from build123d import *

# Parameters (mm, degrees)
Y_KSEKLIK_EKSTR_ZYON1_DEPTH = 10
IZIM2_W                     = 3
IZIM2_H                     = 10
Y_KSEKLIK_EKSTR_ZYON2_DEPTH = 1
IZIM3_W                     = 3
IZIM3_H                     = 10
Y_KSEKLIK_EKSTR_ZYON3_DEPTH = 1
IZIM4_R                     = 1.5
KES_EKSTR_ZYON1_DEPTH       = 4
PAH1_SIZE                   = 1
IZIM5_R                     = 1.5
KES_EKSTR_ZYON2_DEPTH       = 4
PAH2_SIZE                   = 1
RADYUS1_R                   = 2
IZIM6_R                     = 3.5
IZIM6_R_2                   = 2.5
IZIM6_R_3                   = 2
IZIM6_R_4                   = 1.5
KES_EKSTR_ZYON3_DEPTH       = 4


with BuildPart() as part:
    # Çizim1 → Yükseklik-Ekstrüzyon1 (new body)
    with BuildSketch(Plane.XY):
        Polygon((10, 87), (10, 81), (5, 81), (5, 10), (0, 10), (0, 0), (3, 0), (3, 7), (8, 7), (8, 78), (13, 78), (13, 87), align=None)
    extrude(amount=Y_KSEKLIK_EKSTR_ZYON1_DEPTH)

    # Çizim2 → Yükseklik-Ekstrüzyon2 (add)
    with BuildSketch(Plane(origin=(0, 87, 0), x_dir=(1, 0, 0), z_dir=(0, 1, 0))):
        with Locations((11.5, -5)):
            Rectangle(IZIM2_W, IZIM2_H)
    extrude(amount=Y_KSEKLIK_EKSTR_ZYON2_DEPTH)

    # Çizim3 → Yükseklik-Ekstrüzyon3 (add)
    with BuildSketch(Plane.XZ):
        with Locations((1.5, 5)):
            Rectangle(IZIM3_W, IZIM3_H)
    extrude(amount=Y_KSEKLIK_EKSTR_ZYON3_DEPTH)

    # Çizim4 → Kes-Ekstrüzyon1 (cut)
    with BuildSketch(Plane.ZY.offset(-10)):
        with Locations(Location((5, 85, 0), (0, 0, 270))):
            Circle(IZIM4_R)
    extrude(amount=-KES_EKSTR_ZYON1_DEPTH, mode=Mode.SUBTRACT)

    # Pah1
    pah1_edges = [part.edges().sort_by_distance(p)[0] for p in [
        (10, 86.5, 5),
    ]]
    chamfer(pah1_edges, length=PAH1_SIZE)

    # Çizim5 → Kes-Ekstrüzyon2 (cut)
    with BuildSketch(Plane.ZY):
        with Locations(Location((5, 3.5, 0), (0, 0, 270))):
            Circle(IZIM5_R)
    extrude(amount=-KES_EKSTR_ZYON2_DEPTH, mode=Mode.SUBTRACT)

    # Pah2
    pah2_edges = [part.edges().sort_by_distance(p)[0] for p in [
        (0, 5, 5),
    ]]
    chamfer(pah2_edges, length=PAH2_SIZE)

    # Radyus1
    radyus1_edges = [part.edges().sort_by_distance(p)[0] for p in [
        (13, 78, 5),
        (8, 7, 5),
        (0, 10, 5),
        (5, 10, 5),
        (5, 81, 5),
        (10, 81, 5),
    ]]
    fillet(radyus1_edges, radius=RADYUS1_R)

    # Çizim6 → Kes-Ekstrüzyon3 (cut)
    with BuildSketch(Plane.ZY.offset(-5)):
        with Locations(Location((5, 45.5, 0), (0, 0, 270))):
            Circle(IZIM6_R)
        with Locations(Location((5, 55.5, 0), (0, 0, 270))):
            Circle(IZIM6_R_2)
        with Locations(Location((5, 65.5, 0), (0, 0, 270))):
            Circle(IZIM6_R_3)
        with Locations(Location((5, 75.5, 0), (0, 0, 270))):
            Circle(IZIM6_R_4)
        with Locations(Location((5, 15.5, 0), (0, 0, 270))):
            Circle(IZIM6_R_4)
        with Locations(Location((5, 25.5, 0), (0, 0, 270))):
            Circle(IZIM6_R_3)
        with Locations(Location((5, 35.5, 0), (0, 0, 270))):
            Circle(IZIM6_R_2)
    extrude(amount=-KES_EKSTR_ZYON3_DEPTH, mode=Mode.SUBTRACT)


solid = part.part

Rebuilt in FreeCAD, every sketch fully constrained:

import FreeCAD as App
import Part
import Sketcher
from FreeCAD import Vector


def edges_at(feature, points):
    """Names of the edges that pass closest to the given points."""
    edges = feature.Shape.Edges
    near = lambda p: min(range(len(edges)), key=lambda i: edges[i].distToShape(Part.Vertex(*p))[0])
    return sorted({f"Edge{near(p) + 1}" for p in points})

doc = App.newDocument("Part")
body = doc.addObject("PartDesign::Body", "Body")

sketch1 = body.newObject("Sketcher::SketchObject", "Sketch")
sketch1.AttachmentSupport = (doc.getObject("XY_Plane"), [""])
sketch1.MapMode = "FlatFace"
sketch1.addGeometry([
    Part.LineSegment(Vector(10, 87, 0), Vector(10, 81, 0)),
    Part.LineSegment(Vector(10, 81, 0), Vector(5, 81, 0)),
    Part.LineSegment(Vector(5, 81, 0), Vector(5, 10, 0)),
    Part.LineSegment(Vector(5, 10, 0), Vector(0, 10, 0)),
    Part.LineSegment(Vector(0, 10, 0), Vector(0, 0, 0)),
    Part.LineSegment(Vector(0, 0, 0), Vector(3, 0, 0)),
    Part.LineSegment(Vector(3, 0, 0), Vector(3, 7, 0)),
    Part.LineSegment(Vector(3, 7, 0), Vector(8, 7, 0)),
    Part.LineSegment(Vector(8, 7, 0), Vector(8, 78, 0)),
    Part.LineSegment(Vector(8, 78, 0), Vector(13, 78, 0)),
    Part.LineSegment(Vector(13, 78, 0), Vector(13, 87, 0)),
    Part.LineSegment(Vector(13, 87, 0), Vector(10, 87, 0)),
], False)
sketch1.addConstraint([
    Sketcher.Constraint("Coincident", 0, 2, 1, 1),
    Sketcher.Constraint("Coincident", 1, 2, 2, 1),
    Sketcher.Constraint("Coincident", 2, 2, 3, 1),
    Sketcher.Constraint("Coincident", 3, 2, 4, 1),
    Sketcher.Constraint("Coincident", 4, 2, 5, 1),
    Sketcher.Constraint("Coincident", 5, 2, 6, 1),
    Sketcher.Constraint("Coincident", 6, 2, 7, 1),
    Sketcher.Constraint("Coincident", 7, 2, 8, 1),
    Sketcher.Constraint("Coincident", 8, 2, 9, 1),
    Sketcher.Constraint("Coincident", 9, 2, 10, 1),
    Sketcher.Constraint("Coincident", 10, 2, 11, 1),
    Sketcher.Constraint("Coincident", 11, 2, 0, 1),
    Sketcher.Constraint("Vertical", 0),
    Sketcher.Constraint("Horizontal", 1),
    Sketcher.Constraint("Vertical", 2),
    Sketcher.Constraint("Horizontal", 3),
    Sketcher.Constraint("Vertical", 4),
    Sketcher.Constraint("Horizontal", 5),
    Sketcher.Constraint("Vertical", 6),
    Sketcher.Constraint("Horizontal", 7),
    Sketcher.Constraint("Vertical", 8),
    Sketcher.Constraint("Horizontal", 9),
    Sketcher.Constraint("Vertical", 10),
    Sketcher.Constraint("Horizontal", 11),
    Sketcher.Constraint("Coincident", 4, 2, -1, 1),
    Sketcher.Constraint("Equal", 1, 3),
    Sketcher.Constraint("Equal", 3, 7),
    Sketcher.Constraint("Equal", 7, 9),
    Sketcher.Constraint("Equal", 2, 8),
    Sketcher.Constraint("DistanceX", 1, 2, 1, 1, 5.0),
    Sketcher.Constraint("DistanceX", 5, 1, 5, 2, 3.0),
    Sketcher.Constraint("DistanceY", 0, 2, 0, 1, 6.0),
    Sketcher.Constraint("DistanceY", 2, 2, 2, 1, 71.0),
    Sketcher.Constraint("DistanceY", 4, 2, 4, 1, 10.0),
    Sketcher.Constraint("DistanceY", 6, 1, 6, 2, 7.0),
])
pad1 = body.newObject("PartDesign::Pad", "Pad")
pad1.Profile = sketch1
pad1.Length = 10

sketch2 = body.newObject("Sketcher::SketchObject", "Sketch001")
sketch2.AttachmentSupport = (doc.getObject("XZ_Plane"), [""])
sketch2.MapMode = "FlatFace"
sketch2.AttachmentOffset = App.Placement(Vector(0, 0, -87), App.Rotation())
sketch2.addGeometry([
    Part.LineSegment(Vector(10, 0, 0), Vector(10, 10, 0)),
    Part.LineSegment(Vector(10, 10, 0), Vector(13, 10, 0)),
    Part.LineSegment(Vector(13, 10, 0), Vector(13, 0, 0)),
    Part.LineSegment(Vector(13, 0, 0), Vector(10, 0, 0)),
], False)
sketch2.addConstraint([
    Sketcher.Constraint("Coincident", 0, 2, 1, 1),
    Sketcher.Constraint("Coincident", 1, 2, 2, 1),
    Sketcher.Constraint("Coincident", 2, 2, 3, 1),
    Sketcher.Constraint("Coincident", 3, 2, 0, 1),
    Sketcher.Constraint("Vertical", 0),
    Sketcher.Constraint("Horizontal", 1),
    Sketcher.Constraint("Vertical", 2),
    Sketcher.Constraint("Horizontal", 3),
    Sketcher.Constraint("PointOnObject", 2, 2, -1),
    Sketcher.Constraint("DistanceX", 1, 1, 1, 2, 3.0),
    Sketcher.Constraint("DistanceY", 0, 1, 0, 2, 10.0),
    Sketcher.Constraint("DistanceX", -1, 1, 0, 2, 10.0),
])
pad2 = body.newObject("PartDesign::Pad", "Pad001")
pad2.Profile = sketch2
pad2.Length = 1
pad2.Reversed = True

sketch3 = body.newObject("Sketcher::SketchObject", "Sketch002")
sketch3.AttachmentSupport = (doc.getObject("XZ_Plane"), [""])
sketch3.MapMode = "FlatFace"
sketch3.addGeometry([
    Part.LineSegment(Vector(0, 10, 0), Vector(0, 0, 0)),
    Part.LineSegment(Vector(0, 0, 0), Vector(3, 0, 0)),
    Part.LineSegment(Vector(3, 0, 0), Vector(3, 10, 0)),
    Part.LineSegment(Vector(3, 10, 0), Vector(0, 10, 0)),
], False)
sketch3.addConstraint([
    Sketcher.Constraint("Coincident", 0, 2, 1, 1),
    Sketcher.Constraint("Coincident", 1, 2, 2, 1),
    Sketcher.Constraint("Coincident", 2, 2, 3, 1),
    Sketcher.Constraint("Coincident", 3, 2, 0, 1),
    Sketcher.Constraint("Vertical", 0),
    Sketcher.Constraint("Horizontal", 1),
    Sketcher.Constraint("Vertical", 2),
    Sketcher.Constraint("Horizontal", 3),
    Sketcher.Constraint("Coincident", 0, 2, -1, 1),
    Sketcher.Constraint("DistanceX", 1, 1, 1, 2, 3.0),
    Sketcher.Constraint("DistanceY", 0, 2, 0, 1, 10.0),
])
pad3 = body.newObject("PartDesign::Pad", "Pad002")
pad3.Profile = sketch3
pad3.Length = 1

sketch4 = body.newObject("Sketcher::SketchObject", "Sketch003")
sketch4.AttachmentSupport = (doc.getObject("YZ_Plane"), [""])
sketch4.MapMode = "FlatFace"
sketch4.AttachmentOffset = App.Placement(Vector(0, 0, 10), App.Rotation())
sketch4.addGeometry(Part.Circle(Vector(85, 5, 0), Vector(0, 0, 1), 1.5), False)
sketch4.addConstraint([
    Sketcher.Constraint("Diameter", 0, 3.0),
    Sketcher.Constraint("DistanceX", -1, 1, 0, 3, 85.0),
    Sketcher.Constraint("DistanceY", -1, 1, 0, 3, 5.0),
])
pocket1 = body.newObject("PartDesign::Pocket", "Pocket")
pocket1.Profile = sketch4
pocket1.Length = 4
pocket1.Reversed = True
doc.recompute()

chamfer = body.newObject("PartDesign::Chamfer", "Chamfer")
chamfer.Base = (pocket1, edges_at(pocket1, [(10, 86.5, 5)]))
chamfer.Size = 1

sketch5 = body.newObject("Sketcher::SketchObject", "Sketch004")
sketch5.AttachmentSupport = (doc.getObject("YZ_Plane"), [""])
sketch5.MapMode = "FlatFace"
sketch5.addGeometry(Part.Circle(Vector(3.5, 5, 0), Vector(0, 0, 1), 1.5), False)
sketch5.addConstraint([
    Sketcher.Constraint("Diameter", 0, 3.0),
    Sketcher.Constraint("DistanceY", -1, 1, 0, 3, 5.0),
    Sketcher.Constraint("DistanceX", -1, 1, 0, 3, 3.5),
])
pocket2 = body.newObject("PartDesign::Pocket", "Pocket001")
pocket2.Profile = sketch5
pocket2.Length = 4
pocket2.Reversed = True
doc.recompute()

chamfer2 = body.newObject("PartDesign::Chamfer", "Chamfer001")
chamfer2.Base = (pocket2, edges_at(pocket2, [(0, 5, 5)]))
chamfer2.Size = 1
doc.recompute()

fillet = body.newObject("PartDesign::Fillet", "Fillet")
fillet.Base = (chamfer2, edges_at(chamfer2, [
    (13, 78, 5),
    (8, 7, 5),
    (0, 10, 5),
    (5, 10, 5),
    (5, 81, 5),
    (10, 81, 5),
]))
fillet.Radius = 2

sketch6 = body.newObject("Sketcher::SketchObject", "Sketch005")
sketch6.AttachmentSupport = (doc.getObject("YZ_Plane"), [""])
sketch6.MapMode = "FlatFace"
sketch6.AttachmentOffset = App.Placement(Vector(0, 0, 5), App.Rotation())
sketch6.addGeometry([
    Part.Circle(Vector(45.5, 5, 0), Vector(0, 0, 1), 3.5),
    Part.Circle(Vector(55.5, 5, 0), Vector(0, 0, 1), 2.5),
    Part.Circle(Vector(65.5, 5, 0), Vector(0, 0, 1), 2),
    Part.Circle(Vector(75.5, 5, 0), Vector(0, 0, 1), 1.5),
    Part.Circle(Vector(15.5, 5, 0), Vector(0, 0, 1), 1.5),
    Part.Circle(Vector(25.5, 5, 0), Vector(0, 0, 1), 2),
    Part.Circle(Vector(35.5, 5, 0), Vector(0, 0, 1), 2.5),
], False)
sketch6.addConstraint([
    Sketcher.Constraint("Equal", 3, 4),
    Sketcher.Constraint("Equal", 2, 5),
    Sketcher.Constraint("Equal", 1, 6),
    Sketcher.Constraint("Horizontal", 0, 3, 1, 3),
    Sketcher.Constraint("Horizontal", 1, 3, 2, 3),
    Sketcher.Constraint("Horizontal", 2, 3, 3, 3),
    Sketcher.Constraint("Horizontal", 3, 3, 4, 3),
    Sketcher.Constraint("Horizontal", 4, 3, 5, 3),
    Sketcher.Constraint("Horizontal", 5, 3, 6, 3),
    Sketcher.Constraint("Diameter", 0, 7.0),
    Sketcher.Constraint("Diameter", 1, 5.0),
    Sketcher.Constraint("Diameter", 2, 4.0),
    Sketcher.Constraint("Diameter", 3, 3.0),
    Sketcher.Constraint("DistanceY", -1, 1, 0, 3, 5.0),
    Sketcher.Constraint("DistanceX", 0, 3, 1, 3, 10.0),
    Sketcher.Constraint("DistanceX", 1, 3, 2, 3, 10.0),
    Sketcher.Constraint("DistanceX", 2, 3, 3, 3, 10.0),
    Sketcher.Constraint("DistanceX", 4, 3, 0, 3, 30.0),
    Sketcher.Constraint("DistanceX", 4, 3, 5, 3, 10.0),
    Sketcher.Constraint("DistanceX", 6, 3, 0, 3, 10.0),
    Sketcher.Constraint("DistanceX", -1, 1, 0, 3, 45.5),
])
pocket3 = body.newObject("PartDesign::Pocket", "Pocket002")
pocket3.Profile = sketch6
pocket3.Length = 4
pocket3.Reversed = True

doc.recompute()
